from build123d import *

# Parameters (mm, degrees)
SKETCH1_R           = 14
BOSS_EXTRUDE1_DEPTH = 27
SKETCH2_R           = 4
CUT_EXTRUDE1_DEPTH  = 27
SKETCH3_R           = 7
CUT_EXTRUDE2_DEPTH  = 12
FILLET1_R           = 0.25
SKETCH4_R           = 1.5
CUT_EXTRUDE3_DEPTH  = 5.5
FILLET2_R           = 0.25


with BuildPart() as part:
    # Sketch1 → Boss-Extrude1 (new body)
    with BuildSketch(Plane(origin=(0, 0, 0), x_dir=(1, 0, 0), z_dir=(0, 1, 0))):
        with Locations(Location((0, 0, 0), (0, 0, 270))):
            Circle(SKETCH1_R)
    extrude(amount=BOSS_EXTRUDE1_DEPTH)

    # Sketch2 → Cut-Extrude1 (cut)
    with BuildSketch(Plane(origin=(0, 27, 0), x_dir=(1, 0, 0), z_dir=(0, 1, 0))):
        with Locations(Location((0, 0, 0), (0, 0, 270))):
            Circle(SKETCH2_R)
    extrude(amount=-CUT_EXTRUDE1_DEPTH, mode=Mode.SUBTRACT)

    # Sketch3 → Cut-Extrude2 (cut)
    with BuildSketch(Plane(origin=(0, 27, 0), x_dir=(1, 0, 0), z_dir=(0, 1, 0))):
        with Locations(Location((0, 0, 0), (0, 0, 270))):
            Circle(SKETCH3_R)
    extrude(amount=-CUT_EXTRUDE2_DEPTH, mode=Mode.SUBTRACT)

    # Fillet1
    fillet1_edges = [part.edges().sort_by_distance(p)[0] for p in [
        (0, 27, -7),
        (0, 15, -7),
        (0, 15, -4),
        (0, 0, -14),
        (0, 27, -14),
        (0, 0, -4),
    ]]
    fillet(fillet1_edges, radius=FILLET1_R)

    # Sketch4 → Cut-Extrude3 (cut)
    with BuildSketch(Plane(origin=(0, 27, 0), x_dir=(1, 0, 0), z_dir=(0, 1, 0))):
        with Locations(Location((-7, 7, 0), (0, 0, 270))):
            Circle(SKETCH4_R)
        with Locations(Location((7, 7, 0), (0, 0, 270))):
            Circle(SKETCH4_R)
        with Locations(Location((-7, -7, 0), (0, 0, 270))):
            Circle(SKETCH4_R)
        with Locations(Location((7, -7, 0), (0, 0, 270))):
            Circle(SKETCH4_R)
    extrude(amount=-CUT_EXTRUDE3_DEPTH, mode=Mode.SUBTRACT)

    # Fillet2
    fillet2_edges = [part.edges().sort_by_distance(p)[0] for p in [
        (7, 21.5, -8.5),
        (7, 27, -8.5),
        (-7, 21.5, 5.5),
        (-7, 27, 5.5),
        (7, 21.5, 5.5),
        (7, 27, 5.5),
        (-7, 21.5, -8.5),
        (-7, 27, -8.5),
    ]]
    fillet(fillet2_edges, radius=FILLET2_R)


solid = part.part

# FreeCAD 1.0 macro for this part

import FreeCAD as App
import Part
import Sketcher
from FreeCAD import Vector
Q = App.Units.Quantity


def edges_at(feature, points):
    """Names of the edges that pass closest to the given points."""
    edges = feature.Shape.Edges
    near = lambda p: min(range(len(edges)), key=lambda i: edges[i].distToShape(Part.Vertex(*p))[0])
    return sorted({f"Edge{near(p) + 1}" for p in points})

doc = App.newDocument("Part")
params = doc.addObject("Spreadsheet::Sheet", "Params")
for row, (alias, value) in enumerate([
    ("sketch1_diameter", "28 mm"),
    ("pad1_length", "27 mm"),
    ("sketch2_diameter", "8 mm"),
    ("pocket1_length", "27 mm"),
    ("sketch3_diameter", "14 mm"),
    ("pocket2_length", "12 mm"),
    ("fillet_radius", "0.25 mm"),
    ("sketch4_diameter", "3 mm"),
    ("pocket3_length", "5.5 mm"),
    ("fillet2_radius", "0.25 mm"),
], start=1):
    params.set(f"A{row}", alias)
    params.set(f"B{row}", "=" + value)
    params.setAlias(f"B{row}", alias)

body = doc.addObject("PartDesign::Body", "Body")

sketch1 = body.newObject("Sketcher::SketchObject", "Sketch")
sketch1.AttachmentSupport = (doc.getObject("XZ_Plane"), [""])
sketch1.MapMode = "FlatFace"
sketch1.addGeometry(Part.Circle(Vector(0, 0, 0), Vector(0, 0, 1), 14), False)
sketch1.addConstraint([
    Sketcher.Constraint("Coincident", 0, 3, -1, 1),
    Sketcher.Constraint("Diameter", 0, Q("28 mm")),
])
sketch1.setExpression("Constraints[1]", "Params.sketch1_diameter")
pad1 = body.newObject("PartDesign::Pad", "Pad")
pad1.Profile = sketch1
pad1.setExpression("Length", "Params.pad1_length")
pad1.Reversed = True

sketch2 = body.newObject("Sketcher::SketchObject", "Sketch001")
sketch2.AttachmentSupport = (doc.getObject("XZ_Plane"), [""])
sketch2.MapMode = "FlatFace"
sketch2.AttachmentOffset = App.Placement(Vector(0, 0, -27), App.Rotation())
sketch2.addGeometry(Part.Circle(Vector(0, 0, 0), Vector(0, 0, 1), 4), False)
sketch2.addConstraint([
    Sketcher.Constraint("Coincident", 0, 3, -1, 1),
    Sketcher.Constraint("Diameter", 0, Q("8 mm")),
])
sketch2.setExpression("Constraints[1]", "Params.sketch2_diameter")
pocket1 = body.newObject("PartDesign::Pocket", "Pocket")
pocket1.Profile = sketch2
pocket1.setExpression("Length", "Params.pocket1_length")
pocket1.Reversed = True

sketch3 = body.newObject("Sketcher::SketchObject", "Sketch002")
sketch3.AttachmentSupport = (doc.getObject("XZ_Plane"), [""])
sketch3.MapMode = "FlatFace"
sketch3.AttachmentOffset = App.Placement(Vector(0, 0, -27), App.Rotation())
sketch3.addGeometry(Part.Circle(Vector(0, 0, 0), Vector(0, 0, 1), 7), False)
sketch3.addConstraint([
    Sketcher.Constraint("Coincident", 0, 3, -1, 1),
    Sketcher.Constraint("Diameter", 0, Q("14 mm")),
])
sketch3.setExpression("Constraints[1]", "Params.sketch3_diameter")
pocket2 = body.newObject("PartDesign::Pocket", "Pocket001")
pocket2.Profile = sketch3
pocket2.setExpression("Length", "Params.pocket2_length")
pocket2.Reversed = True
doc.recompute()

fillet = body.newObject("PartDesign::Fillet", "Fillet")
fillet.Base = (pocket2, edges_at(pocket2, [
    (0, 27, -7),
    (0, 15, -7),
    (0, 15, -4),
    (0, 0, -14),
    (0, 27, -14),
    (0, 0, -4),
]))
fillet.setExpression("Radius", "Params.fillet_radius")

sketch4 = body.newObject("Sketcher::SketchObject", "Sketch003")
sketch4.AttachmentSupport = (doc.getObject("XZ_Plane"), [""])
sketch4.MapMode = "FlatFace"
sketch4.AttachmentOffset = App.Placement(Vector(0, 0, -27), App.Rotation())
sketch4.addGeometry([
    Part.Circle(Vector(-7, -7, 0), Vector(0, 0, 1), 1.5),
    Part.Circle(Vector(7, -7, 0), Vector(0, 0, 1), 1.5),
    Part.Circle(Vector(-7, 7, 0), Vector(0, 0, 1), 1.5),
    Part.Circle(Vector(7, 7, 0), Vector(0, 0, 1), 1.5),
], False)
sketch4.addConstraint([
    Sketcher.Constraint("Equal", 0, 1),
    Sketcher.Constraint("Equal", 1, 2),
    Sketcher.Constraint("Equal", 2, 3),
    Sketcher.Constraint("Symmetric", 1, 3, 2, 3, -1, 1),
    Sketcher.Constraint("Symmetric", 0, 3, 3, 3, -1, 1),
    Sketcher.Constraint("Symmetric", 0, 3, 1, 3, -2),
    Sketcher.Constraint("Diameter", 0, Q("3 mm")),
    Sketcher.Constraint("DistanceX", 0, 3, -1, 1, Q("7 mm")),
    Sketcher.Constraint("DistanceY", 0, 3, -1, 1, Q("7 mm")),
])
sketch4.setExpression("Constraints[6]", "Params.sketch4_diameter")
pocket3 = body.newObject("PartDesign::Pocket", "Pocket002")
pocket3.Profile = sketch4
pocket3.setExpression("Length", "Params.pocket3_length")
pocket3.Reversed = True
doc.recompute()

fillet2 = body.newObject("PartDesign::Fillet", "Fillet001")
fillet2.Base = (pocket3, edges_at(pocket3, [
    (7, 21.5, -8.5),
    (7, 27, -8.5),
    (-7, 21.5, 5.5),
    (-7, 27, 5.5),
    (7, 21.5, 5.5),
    (7, 27, 5.5),
    (-7, 21.5, -8.5),
    (-7, 27, -8.5),
]))
fillet2.setExpression("Radius", "Params.fillet2_radius")

doc.recompute()
